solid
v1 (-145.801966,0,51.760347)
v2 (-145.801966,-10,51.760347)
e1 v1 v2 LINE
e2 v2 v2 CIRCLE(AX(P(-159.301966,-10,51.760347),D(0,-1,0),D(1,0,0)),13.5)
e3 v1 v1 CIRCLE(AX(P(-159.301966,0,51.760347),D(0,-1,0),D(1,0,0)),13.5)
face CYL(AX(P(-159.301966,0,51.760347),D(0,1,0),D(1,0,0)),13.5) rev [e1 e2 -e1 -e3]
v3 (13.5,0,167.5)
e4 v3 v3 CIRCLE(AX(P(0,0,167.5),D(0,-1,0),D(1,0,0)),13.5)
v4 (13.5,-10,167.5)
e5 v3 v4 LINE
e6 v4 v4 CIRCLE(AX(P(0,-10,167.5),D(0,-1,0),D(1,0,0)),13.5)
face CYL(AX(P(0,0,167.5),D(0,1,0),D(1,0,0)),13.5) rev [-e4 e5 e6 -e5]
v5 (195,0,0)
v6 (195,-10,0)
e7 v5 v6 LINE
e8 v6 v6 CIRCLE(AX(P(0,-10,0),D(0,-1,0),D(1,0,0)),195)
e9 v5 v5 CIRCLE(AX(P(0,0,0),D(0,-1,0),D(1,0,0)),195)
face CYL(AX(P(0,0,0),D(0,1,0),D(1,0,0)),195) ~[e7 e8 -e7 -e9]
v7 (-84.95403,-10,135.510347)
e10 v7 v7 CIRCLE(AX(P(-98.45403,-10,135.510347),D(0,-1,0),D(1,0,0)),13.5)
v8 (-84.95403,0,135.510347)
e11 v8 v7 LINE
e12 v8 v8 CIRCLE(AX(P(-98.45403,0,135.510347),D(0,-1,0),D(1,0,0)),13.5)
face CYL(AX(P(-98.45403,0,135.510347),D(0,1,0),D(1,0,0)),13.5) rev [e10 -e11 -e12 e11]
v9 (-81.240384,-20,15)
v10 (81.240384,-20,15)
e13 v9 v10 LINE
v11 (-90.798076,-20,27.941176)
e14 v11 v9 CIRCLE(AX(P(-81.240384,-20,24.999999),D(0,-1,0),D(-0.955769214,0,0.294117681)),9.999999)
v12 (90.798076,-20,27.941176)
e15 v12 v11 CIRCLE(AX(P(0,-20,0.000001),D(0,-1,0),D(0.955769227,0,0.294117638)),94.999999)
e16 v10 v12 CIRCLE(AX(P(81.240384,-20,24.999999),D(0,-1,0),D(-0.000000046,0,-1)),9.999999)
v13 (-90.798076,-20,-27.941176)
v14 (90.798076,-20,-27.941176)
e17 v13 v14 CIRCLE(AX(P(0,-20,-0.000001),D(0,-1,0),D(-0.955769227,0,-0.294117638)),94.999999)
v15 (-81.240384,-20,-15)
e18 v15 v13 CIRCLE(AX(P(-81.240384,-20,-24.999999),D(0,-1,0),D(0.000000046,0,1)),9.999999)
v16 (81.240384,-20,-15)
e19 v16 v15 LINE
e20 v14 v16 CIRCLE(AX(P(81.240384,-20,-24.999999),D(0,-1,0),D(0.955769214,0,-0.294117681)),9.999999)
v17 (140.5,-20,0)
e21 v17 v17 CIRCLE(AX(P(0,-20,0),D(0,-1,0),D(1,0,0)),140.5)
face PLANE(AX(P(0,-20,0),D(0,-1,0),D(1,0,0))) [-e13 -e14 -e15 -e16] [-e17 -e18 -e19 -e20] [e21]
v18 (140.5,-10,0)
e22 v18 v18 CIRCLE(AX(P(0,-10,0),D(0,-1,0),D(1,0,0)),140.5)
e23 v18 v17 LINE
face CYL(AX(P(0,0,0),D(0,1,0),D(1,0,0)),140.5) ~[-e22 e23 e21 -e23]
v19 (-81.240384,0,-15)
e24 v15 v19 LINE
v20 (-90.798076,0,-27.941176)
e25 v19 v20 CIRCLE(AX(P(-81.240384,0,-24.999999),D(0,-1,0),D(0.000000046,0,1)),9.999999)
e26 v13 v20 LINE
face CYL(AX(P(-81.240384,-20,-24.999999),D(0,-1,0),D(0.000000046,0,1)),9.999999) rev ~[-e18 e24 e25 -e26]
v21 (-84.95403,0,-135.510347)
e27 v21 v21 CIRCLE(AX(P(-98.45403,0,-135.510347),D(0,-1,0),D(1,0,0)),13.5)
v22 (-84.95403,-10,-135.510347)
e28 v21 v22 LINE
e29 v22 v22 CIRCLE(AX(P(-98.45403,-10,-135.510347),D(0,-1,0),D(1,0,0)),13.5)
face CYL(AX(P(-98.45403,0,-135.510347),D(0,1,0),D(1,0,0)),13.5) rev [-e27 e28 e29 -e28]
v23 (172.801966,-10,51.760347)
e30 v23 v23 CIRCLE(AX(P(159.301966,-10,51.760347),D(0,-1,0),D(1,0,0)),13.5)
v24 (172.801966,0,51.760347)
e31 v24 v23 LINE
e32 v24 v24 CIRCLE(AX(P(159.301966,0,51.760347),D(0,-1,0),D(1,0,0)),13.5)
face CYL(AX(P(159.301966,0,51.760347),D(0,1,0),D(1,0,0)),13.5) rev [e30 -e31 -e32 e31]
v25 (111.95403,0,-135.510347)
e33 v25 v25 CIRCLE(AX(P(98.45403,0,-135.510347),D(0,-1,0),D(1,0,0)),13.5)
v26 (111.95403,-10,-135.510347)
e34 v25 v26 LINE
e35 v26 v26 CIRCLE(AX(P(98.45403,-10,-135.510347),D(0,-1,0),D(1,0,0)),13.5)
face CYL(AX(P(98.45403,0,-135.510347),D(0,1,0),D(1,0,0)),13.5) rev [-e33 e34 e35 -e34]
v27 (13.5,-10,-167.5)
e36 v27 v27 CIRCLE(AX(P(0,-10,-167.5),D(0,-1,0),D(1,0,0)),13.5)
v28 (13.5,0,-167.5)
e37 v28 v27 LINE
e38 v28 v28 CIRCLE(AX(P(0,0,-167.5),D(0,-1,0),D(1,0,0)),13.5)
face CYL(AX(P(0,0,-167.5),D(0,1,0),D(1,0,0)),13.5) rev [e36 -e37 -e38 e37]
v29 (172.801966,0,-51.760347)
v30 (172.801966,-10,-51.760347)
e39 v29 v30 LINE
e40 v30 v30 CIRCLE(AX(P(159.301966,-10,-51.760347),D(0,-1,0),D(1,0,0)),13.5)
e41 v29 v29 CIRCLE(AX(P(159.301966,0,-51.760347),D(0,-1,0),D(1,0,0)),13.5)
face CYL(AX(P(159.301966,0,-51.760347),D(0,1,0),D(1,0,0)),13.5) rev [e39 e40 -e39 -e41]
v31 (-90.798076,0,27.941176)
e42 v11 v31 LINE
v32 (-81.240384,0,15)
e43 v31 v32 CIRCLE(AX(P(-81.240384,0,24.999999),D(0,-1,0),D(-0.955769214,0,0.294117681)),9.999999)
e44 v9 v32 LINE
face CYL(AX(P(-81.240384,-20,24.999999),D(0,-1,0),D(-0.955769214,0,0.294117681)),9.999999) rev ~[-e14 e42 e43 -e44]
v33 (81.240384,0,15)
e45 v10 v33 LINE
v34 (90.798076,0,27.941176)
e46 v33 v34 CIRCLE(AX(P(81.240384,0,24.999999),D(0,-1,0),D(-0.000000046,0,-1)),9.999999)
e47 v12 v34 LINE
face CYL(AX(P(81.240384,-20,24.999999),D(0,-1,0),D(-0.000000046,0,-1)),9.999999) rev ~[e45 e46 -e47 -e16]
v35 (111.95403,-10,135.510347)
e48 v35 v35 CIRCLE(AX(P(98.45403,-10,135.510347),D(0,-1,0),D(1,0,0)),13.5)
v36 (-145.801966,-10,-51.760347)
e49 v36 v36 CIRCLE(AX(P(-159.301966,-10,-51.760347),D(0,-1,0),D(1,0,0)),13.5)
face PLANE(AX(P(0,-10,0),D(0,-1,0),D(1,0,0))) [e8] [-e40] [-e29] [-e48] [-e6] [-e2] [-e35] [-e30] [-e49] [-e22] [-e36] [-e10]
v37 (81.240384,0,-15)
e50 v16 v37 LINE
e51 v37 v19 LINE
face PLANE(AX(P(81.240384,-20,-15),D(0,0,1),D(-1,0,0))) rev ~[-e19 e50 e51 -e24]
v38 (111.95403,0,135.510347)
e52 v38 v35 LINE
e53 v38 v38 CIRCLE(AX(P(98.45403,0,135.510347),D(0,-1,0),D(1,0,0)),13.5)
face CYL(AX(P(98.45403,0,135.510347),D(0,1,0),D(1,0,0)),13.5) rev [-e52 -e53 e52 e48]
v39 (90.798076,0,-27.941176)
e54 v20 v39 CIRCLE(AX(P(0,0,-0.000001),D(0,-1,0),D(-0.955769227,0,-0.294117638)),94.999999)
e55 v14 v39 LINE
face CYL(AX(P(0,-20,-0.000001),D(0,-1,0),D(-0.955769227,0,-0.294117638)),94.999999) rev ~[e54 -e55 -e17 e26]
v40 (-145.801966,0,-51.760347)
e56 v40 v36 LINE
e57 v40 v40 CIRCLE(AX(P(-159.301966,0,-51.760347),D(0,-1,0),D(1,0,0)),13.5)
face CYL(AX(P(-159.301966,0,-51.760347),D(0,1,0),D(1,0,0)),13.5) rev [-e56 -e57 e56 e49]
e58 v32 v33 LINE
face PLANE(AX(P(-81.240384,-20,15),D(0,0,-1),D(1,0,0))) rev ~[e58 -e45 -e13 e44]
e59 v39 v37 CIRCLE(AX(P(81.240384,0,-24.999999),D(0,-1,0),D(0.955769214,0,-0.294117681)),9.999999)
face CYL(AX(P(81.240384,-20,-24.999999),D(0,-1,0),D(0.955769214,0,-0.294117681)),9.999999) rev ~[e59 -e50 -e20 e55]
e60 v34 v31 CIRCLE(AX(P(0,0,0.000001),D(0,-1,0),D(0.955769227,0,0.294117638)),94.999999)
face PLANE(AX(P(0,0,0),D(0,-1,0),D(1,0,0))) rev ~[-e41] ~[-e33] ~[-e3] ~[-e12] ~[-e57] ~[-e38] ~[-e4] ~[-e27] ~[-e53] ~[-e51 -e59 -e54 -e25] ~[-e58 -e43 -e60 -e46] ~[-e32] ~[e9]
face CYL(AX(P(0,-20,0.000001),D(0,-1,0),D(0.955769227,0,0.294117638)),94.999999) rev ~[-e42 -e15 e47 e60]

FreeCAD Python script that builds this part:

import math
import FreeCAD as App
import Part
import Sketcher

V = App.Vector

doc = App.newDocument("Part")
body = doc.addObject("PartDesign::Body", "Body")

# Sketch on XZ plane
sketch1 = doc.addObject("Sketcher::SketchObject", "Sketch")
body.addObject(sketch1)
sketch1.AttachmentSupport = (doc.XZ_Plane, [""])
sketch1.MapMode = "FlatFace"
sketch1.addGeometry(Part.Circle(V(0, 0, 0), V(0, 0, 1), 140), False)
sketch1.addConstraint([
    Sketcher.Constraint("Coincident", 0, 3, -1, 1),
    Sketcher.Constraint("Diameter", 0, 281.0),
])
pad1 = doc.addObject("PartDesign::Pad", "Pad")
body.addObject(pad1)
pad1.Profile = sketch1
pad1.Length = 20

# Sketch on XZ plane
sketch2 = doc.addObject("Sketcher::SketchObject", "Sketch001")
body.addObject(sketch2)
sketch2.AttachmentSupport = (doc.XZ_Plane, [""])
sketch2.MapMode = "FlatFace"
sketch2.addGeometry([
    Part.Circle(V(0, 0, 0), V(0, 0, 1), 195),  # 0
    Part.Circle(V(-98, -136, 0), V(0, 0, 1), 14),  # 1
    Part.Circle(V(-159, -52, 0), V(0, 0, 1), 14),  # 2
    Part.Circle(V(0, -168, 0), V(0, 0, 1), 14),  # 3
    Part.Circle(V(98, -136, 0), V(0, 0, 1), 14),  # 4
    Part.Circle(V(159, -52, 0), V(0, 0, 1), 14),  # 5
    Part.Circle(V(-159, 52, 0), V(0, 0, 1), 14),  # 6
    Part.Circle(V(-98, 136, 0), V(0, 0, 1), 14),  # 7
    Part.Circle(V(0, 0, 0), V(0, 0, 1), 140),  # 8
    Part.Circle(V(159, 52, 0), V(0, 0, 1), 14),  # 9
    Part.Circle(V(0, 168, 0), V(0, 0, 1), 14),  # 10
    Part.Circle(V(98, 136, 0), V(0, 0, 1), 14),  # 11
], False)
sketch2.addConstraint([
    Sketcher.Constraint("Coincident", 0, 3, -1, 1),
    Sketcher.Constraint("Coincident", 8, 3, -1, 1),
    Sketcher.Constraint("Equal", 1, 2),
    Sketcher.Constraint("Equal", 2, 3),
    Sketcher.Constraint("Equal", 3, 4),
    Sketcher.Constraint("Equal", 4, 5),
    Sketcher.Constraint("Equal", 5, 6),
    Sketcher.Constraint("Equal", 6, 7),
    Sketcher.Constraint("Equal", 7, 9),
    Sketcher.Constraint("Equal", 9, 10),
    Sketcher.Constraint("Equal", 10, 11),
    Sketcher.Constraint("Symmetric", 5, 3, 6, 3, -1, 1),
    Sketcher.Constraint("Symmetric", 4, 3, 7, 3, -1, 1),
    Sketcher.Constraint("Symmetric", 2, 3, 9, 3, -1, 1),
    Sketcher.Constraint("Symmetric", 3, 3, 10, 3, -1, 1),
    Sketcher.Constraint("Symmetric", 1, 3, 11, 3, -1, 1),
    Sketcher.Constraint("Symmetric", 1, 3, 4, 3, -2),
    Sketcher.Constraint("Symmetric", 2, 3, 5, 3, -2),
    Sketcher.Constraint("PointOnObject", 3, 3, -2),
    Sketcher.Constraint("Diameter", 0, 390.0),
    Sketcher.Constraint("Diameter", 1, 27.0),
    Sketcher.Constraint("Diameter", 8, 281.0),
    Sketcher.Constraint("DistanceY", 3, 3, -1, 1, 167.5),
    Sketcher.Constraint("DistanceY", 1, 3, 2, 3, 83.75),
    Sketcher.Constraint("DistanceX", 1, 3, -1, 1, 98.45403),
    Sketcher.Constraint("DistanceX", 2, 3, 5, 3, 318.603932),
    Sketcher.Constraint("DistanceY", 1, 3, -1, 1, 135.510347),
])
pad2 = doc.addObject("PartDesign::Pad", "Pad001")
body.addObject(pad2)
pad2.Profile = sketch2
pad2.Length = 10

# Sketch on XZ plane
sketch3 = doc.addObject("Sketcher::SketchObject", "Sketch002")
body.addObject(sketch3)
sketch3.AttachmentSupport = (doc.XZ_Plane, [""])
sketch3.MapMode = "FlatFace"
sketch3.AttachmentOffset = App.Placement(V(0, 0, 20), App.Rotation())
sketch3.addGeometry([
    Part.ArcOfCircle(Part.Circle(V(81, 25, 0), V(0, 0, 1), 10), math.radians(-90), math.radians(17)),  # 0
    Part.ArcOfCircle(Part.Circle(V(0, 0, 0), V(0, 0, 1), 95), math.radians(17), math.radians(163)),  # 1
    Part.ArcOfCircle(Part.Circle(V(-81, 25, 0), V(0, 0, 1), 10), math.radians(163), math.radians(270)),  # 2
    Part.LineSegment(V(-81, 15, 0), V(81, 15, 0)),  # 3
    Part.LineSegment(V(81, -15, 0), V(-81, -15, 0)),  # 4
    Part.ArcOfCircle(Part.Circle(V(-81, -25, 0), V(0, 0, 1), 10), math.radians(90), math.radians(197)),  # 5
    Part.ArcOfCircle(Part.Circle(V(0, 0, 0), V(0, 0, 1), 95), math.radians(-163), math.radians(-17)),  # 6
    Part.ArcOfCircle(Part.Circle(V(81, -25, 0), V(0, 0, 1), 10), math.radians(-17), math.radians(90)),  # 7
], False)
sketch3.addConstraint([
    Sketcher.Constraint("Tangent", 0, 2, 1, 1),
    Sketcher.Constraint("Tangent", 1, 2, 2, 1),
    Sketcher.Constraint("Tangent", 2, 2, 3, 1),
    Sketcher.Constraint("Tangent", 3, 2, 0, 1),
    Sketcher.Constraint("Tangent", 4, 2, 5, 1),
    Sketcher.Constraint("Tangent", 5, 2, 6, 1),
    Sketcher.Constraint("Tangent", 6, 2, 7, 1),
    Sketcher.Constraint("Tangent", 7, 2, 4, 1),
    Sketcher.Constraint("Horizontal", 3),
    Sketcher.Constraint("Horizontal", 4),
    Sketcher.Constraint("Coincident", 1, 3, -1, 1),
    Sketcher.Constraint("Coincident", 6, 3, -1, 1),
    Sketcher.Constraint("Equal", 0, 2),
    Sketcher.Constraint("Equal", 2, 5),
    Sketcher.Constraint("Equal", 1, 6),
    Sketcher.Constraint("Equal", 5, 7),
    Sketcher.Constraint("Vertical", 2, 3, 5, 3),
    Sketcher.Constraint("Radius", 0, 9.999999),
    Sketcher.Constraint("Radius", 1, 94.999999),
    Sketcher.Constraint("DistanceY", -1, 1, 0, 3, 24.999999),
])
pocket1 = doc.addObject("PartDesign::Pocket", "Pocket")
body.addObject(pocket1)
pocket1.Profile = sketch3
pocket1.Length = 25

doc.recompute()
